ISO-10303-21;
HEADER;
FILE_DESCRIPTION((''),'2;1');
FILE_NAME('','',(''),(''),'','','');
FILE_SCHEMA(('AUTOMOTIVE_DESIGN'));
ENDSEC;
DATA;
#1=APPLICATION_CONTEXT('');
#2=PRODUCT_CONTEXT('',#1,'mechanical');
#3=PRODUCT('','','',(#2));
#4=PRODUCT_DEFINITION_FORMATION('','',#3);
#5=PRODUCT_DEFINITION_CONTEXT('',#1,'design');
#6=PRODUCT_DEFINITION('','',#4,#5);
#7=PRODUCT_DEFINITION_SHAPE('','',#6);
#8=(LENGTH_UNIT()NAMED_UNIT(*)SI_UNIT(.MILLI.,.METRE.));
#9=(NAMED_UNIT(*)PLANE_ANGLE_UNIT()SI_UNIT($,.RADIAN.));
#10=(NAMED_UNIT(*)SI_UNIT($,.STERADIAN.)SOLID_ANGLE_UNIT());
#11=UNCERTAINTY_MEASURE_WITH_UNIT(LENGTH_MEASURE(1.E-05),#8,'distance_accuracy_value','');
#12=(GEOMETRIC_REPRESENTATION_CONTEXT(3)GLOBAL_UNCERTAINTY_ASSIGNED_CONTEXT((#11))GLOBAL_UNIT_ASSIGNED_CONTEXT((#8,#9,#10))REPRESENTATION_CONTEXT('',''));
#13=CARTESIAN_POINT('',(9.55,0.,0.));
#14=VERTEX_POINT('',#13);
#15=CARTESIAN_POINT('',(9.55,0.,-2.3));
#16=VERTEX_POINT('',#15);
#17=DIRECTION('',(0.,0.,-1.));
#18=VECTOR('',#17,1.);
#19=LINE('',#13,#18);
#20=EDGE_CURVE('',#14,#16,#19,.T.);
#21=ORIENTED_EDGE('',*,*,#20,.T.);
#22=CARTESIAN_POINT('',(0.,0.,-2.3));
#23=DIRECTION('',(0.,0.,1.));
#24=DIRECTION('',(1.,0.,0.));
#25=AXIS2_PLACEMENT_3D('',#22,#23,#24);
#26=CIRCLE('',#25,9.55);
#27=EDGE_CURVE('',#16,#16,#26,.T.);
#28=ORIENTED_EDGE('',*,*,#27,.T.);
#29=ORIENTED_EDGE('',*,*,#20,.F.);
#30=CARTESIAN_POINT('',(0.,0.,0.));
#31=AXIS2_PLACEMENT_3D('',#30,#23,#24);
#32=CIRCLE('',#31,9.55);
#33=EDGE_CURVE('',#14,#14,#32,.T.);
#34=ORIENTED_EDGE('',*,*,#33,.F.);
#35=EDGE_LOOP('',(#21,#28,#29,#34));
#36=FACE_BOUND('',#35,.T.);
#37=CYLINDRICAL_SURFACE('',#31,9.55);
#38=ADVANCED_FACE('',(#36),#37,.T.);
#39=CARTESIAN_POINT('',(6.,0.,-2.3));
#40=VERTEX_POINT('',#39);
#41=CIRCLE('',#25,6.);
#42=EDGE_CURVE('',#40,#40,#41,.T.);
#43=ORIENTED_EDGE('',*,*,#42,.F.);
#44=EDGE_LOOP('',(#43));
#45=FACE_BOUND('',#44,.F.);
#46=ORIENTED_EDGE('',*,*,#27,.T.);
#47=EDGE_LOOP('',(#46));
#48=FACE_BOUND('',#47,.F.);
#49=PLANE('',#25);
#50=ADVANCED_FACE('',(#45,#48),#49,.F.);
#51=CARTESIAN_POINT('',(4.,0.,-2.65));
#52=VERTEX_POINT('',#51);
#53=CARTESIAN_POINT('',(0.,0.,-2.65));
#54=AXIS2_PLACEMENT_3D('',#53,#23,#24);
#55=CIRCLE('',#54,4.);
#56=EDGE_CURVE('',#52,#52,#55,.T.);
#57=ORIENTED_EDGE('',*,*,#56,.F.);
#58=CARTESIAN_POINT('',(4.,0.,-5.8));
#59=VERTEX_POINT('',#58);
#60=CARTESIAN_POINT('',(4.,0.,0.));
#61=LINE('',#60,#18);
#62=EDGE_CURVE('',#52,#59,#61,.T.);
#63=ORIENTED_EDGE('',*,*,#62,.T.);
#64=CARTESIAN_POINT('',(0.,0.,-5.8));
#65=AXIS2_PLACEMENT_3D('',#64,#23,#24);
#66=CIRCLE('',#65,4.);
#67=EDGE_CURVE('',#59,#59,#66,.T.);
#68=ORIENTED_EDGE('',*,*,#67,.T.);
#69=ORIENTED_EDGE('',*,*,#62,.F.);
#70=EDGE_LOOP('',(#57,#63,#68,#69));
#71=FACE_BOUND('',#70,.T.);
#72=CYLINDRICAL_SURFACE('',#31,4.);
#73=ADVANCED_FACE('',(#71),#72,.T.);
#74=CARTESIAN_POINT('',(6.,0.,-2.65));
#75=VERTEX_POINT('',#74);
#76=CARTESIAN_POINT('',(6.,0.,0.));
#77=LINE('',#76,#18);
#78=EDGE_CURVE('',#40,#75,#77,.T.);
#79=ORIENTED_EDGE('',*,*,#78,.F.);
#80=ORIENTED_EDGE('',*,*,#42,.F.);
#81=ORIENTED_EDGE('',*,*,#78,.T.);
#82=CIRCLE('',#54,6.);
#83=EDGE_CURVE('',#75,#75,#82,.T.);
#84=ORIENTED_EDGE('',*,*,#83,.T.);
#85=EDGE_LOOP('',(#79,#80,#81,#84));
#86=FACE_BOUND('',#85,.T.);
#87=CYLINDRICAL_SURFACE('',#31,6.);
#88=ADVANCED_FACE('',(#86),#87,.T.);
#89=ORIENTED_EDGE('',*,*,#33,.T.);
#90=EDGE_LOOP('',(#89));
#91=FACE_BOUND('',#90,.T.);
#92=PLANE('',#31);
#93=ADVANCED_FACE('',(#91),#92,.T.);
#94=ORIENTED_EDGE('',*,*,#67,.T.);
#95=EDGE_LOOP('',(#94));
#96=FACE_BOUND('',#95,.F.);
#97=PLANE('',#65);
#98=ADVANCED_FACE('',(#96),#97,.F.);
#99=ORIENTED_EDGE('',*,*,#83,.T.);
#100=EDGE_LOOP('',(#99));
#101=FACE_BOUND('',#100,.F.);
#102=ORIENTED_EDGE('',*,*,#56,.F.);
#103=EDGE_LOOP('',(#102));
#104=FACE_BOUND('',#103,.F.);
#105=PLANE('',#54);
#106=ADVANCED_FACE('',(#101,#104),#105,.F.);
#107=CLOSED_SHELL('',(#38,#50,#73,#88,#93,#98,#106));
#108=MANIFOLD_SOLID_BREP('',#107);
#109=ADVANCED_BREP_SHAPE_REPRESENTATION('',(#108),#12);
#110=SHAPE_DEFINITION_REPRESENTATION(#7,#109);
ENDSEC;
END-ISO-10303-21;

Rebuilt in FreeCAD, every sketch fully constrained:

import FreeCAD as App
import Part
import Sketcher

V = App.Vector
Q = App.Units.Quantity

doc = App.newDocument("Part")
params = doc.addObject("Spreadsheet::Sheet", "Params")
for row, (alias, value) in enumerate([
    ("sketch1_diameter", "12 mm"),
    ("sketch1_diameter2", "19.1 mm"),
    ("pad1_length", "2.3 mm"),
    ("sketch2_diameter", "12 mm"),
    ("sketch2_diameter2", "8 mm"),
    ("pad2_length", "2.65 mm"),
    ("sketch3_diameter", "8 mm"),
    ("pad3_length", "5.8 mm"),
], start=1):
    params.set(f"A{row}", alias)
    params.set(f"B{row}", "=" + value)
    params.setAlias(f"B{row}", alias)

body = doc.addObject("PartDesign::Body", "Body")

# Sketch on XY plane
sketch1 = doc.addObject("Sketcher::SketchObject", "Sketch")
body.addObject(sketch1)
sketch1.AttachmentSupport = (doc.XY_Plane, [""])
sketch1.MapMode = "FlatFace"
sketch1.addGeometry(Part.Circle(V(0, 0, 0), V(0, 0, 1), 10), False)
sketch1.addGeometry(Part.Circle(V(0, 0, 0), V(0, 0, 1), 6), False)
sketch1.addConstraint(Sketcher.Constraint("Coincident", 0, 3, -1, 1))
sketch1.addConstraint(Sketcher.Constraint("Coincident", 1, 3, -1, 1))
sketch1.addConstraint(Sketcher.Constraint("Diameter", 1, Q("12 mm")))
sketch1.addConstraint(Sketcher.Constraint("Diameter", 0, Q("19.1 mm")))
sketch1.setExpression("Constraints[2]", "Params.sketch1_diameter")
sketch1.setExpression("Constraints[3]", "Params.sketch1_diameter2")
pad1 = doc.addObject("PartDesign::Pad", "Pad")
body.addObject(pad1)
pad1.Profile = sketch1
pad1.setExpression("Length", "Params.pad1_length")
pad1.Reversed = True

# Sketch on XY plane
sketch2 = doc.addObject("Sketcher::SketchObject", "Sketch001")
body.addObject(sketch2)
sketch2.AttachmentSupport = (doc.XY_Plane, [""])
sketch2.MapMode = "FlatFace"
sketch2.addGeometry(Part.Circle(V(0, 0, 0), V(0, 0, 1), 6), False)
sketch2.addGeometry(Part.Circle(V(0, 0, 0), V(0, 0, 1), 4), False)
sketch2.addConstraint(Sketcher.Constraint("Coincident", 0, 3, -1, 1))
sketch2.addConstraint(Sketcher.Constraint("Coincident", 1, 3, -1, 1))
sketch2.addConstraint(Sketcher.Constraint("Diameter", 0, Q("12 mm")))
sketch2.addConstraint(Sketcher.Constraint("Diameter", 1, Q("8 mm")))
sketch2.setExpression("Constraints[2]", "Params.sketch2_diameter")
sketch2.setExpression("Constraints[3]", "Params.sketch2_diameter2")
pad2 = doc.addObject("PartDesign::Pad", "Pad001")
body.addObject(pad2)
pad2.Profile = sketch2
pad2.setExpression("Length", "Params.pad2_length")
pad2.Reversed = True

# Sketch on XY plane
sketch3 = doc.addObject("Sketcher::SketchObject", "Sketch002")
body.addObject(sketch3)
sketch3.AttachmentSupport = (doc.XY_Plane, [""])
sketch3.MapMode = "FlatFace"
sketch3.addGeometry(Part.Circle(V(0, 0, 0), V(0, 0, 1), 4), False)
sketch3.addConstraint(Sketcher.Constraint("Coincident", 0, 3, -1, 1))
sketch3.addConstraint(Sketcher.Constraint("Diameter", 0, Q("8 mm")))
sketch3.setExpression("Constraints[1]", "Params.sketch3_diameter")
pad3 = doc.addObject("PartDesign::Pad", "Pad002")
body.addObject(pad3)
pad3.Profile = sketch3
pad3.setExpression("Length", "Params.pad3_length")
pad3.Reversed = True

doc.recompute()
